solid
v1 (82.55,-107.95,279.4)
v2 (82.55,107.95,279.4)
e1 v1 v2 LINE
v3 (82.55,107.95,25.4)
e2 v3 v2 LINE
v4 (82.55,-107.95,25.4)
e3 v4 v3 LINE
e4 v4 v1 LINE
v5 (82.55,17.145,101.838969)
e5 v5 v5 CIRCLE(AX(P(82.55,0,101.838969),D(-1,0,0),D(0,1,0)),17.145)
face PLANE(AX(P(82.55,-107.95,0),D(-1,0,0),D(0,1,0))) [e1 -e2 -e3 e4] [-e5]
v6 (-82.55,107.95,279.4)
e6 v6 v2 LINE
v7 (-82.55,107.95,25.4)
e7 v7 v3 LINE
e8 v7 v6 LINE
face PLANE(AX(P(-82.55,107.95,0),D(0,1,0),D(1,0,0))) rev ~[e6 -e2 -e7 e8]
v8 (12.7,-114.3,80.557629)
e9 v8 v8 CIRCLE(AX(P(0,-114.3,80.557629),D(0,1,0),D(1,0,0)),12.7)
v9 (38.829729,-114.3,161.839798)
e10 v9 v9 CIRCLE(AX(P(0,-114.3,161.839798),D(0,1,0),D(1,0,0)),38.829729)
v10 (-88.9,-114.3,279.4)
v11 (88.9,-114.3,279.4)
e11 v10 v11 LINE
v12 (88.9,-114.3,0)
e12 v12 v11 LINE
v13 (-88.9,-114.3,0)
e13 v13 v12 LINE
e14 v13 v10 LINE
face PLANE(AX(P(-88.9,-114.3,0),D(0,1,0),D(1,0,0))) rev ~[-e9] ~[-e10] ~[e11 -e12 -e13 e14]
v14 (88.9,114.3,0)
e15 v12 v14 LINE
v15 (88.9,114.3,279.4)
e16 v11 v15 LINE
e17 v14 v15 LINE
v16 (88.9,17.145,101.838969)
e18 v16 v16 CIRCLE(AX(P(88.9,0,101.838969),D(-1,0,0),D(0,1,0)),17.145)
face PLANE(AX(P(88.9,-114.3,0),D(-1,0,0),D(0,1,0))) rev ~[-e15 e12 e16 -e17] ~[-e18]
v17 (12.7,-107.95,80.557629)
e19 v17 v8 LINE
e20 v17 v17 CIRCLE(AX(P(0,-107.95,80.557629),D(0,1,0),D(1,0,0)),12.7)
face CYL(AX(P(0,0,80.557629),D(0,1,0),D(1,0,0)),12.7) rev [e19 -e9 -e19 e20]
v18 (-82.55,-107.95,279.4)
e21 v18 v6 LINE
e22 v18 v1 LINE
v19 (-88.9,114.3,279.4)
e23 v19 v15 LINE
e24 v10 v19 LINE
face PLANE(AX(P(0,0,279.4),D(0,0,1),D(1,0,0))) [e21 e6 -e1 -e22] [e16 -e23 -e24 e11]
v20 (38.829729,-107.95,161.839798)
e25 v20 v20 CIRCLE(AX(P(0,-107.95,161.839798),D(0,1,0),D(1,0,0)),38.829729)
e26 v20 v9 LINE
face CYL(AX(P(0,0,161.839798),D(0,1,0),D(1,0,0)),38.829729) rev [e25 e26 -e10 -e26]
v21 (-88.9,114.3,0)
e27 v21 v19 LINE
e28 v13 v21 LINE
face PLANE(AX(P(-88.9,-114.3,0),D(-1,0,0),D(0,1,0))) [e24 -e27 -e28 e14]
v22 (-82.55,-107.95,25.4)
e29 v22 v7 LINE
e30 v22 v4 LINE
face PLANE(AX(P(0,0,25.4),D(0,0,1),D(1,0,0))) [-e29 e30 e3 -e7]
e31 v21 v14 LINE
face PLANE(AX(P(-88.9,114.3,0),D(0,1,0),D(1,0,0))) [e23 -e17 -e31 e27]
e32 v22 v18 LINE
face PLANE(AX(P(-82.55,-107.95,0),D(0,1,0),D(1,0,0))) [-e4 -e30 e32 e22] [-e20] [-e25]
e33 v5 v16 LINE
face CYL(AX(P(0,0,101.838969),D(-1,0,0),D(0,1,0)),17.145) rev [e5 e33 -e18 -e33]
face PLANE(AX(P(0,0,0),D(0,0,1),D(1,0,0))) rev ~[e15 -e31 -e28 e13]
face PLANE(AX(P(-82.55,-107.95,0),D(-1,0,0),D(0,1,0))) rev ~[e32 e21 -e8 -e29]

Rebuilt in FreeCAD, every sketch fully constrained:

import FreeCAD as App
import Part
import Sketcher
Q = App.Units.Quantity

doc = App.newDocument("Part")
params = doc.addObject("Spreadsheet::Sheet", "Params")
for row, (alias, value) in enumerate([
    ("sketch1_width", "7 in"),
    ("sketch1_height", "9 in"),
    ("sketch1_width2", "6.5 in"),
    ("sketch1_height2", "8.5 in"),
    ("pad1_length", "11 in"),
    ("sketch2_diameter", "1 in"),
    ("pocket1_length", "10 in"),
    ("sketch3_diameter", "1.35 in"),
    ("pocket2_length", "10 in"),
    ("sketch4_width", "6.5 in"),
    ("sketch4_height", "8.5 in"),
    ("pad2_length", "1 in"),
], start=1):
    params.set(f"A{row}", alias)
    params.set(f"B{row}", "=" + value)
    params.setAlias(f"B{row}", alias)

body = doc.addObject("PartDesign::Body", "Body")

sketch1 = body.newObject("Sketcher::SketchObject", "Sketch")
sketch1.AttachmentSupport = (doc.getObject("XY_Plane"), [""])
sketch1.MapMode = "FlatFace"
sketch1.addGeometry([
    Part.LineSegment(App.Vector(-89, 114, 0), App.Vector(-89, -114, 0)),
    Part.LineSegment(App.Vector(-89, -114, 0), App.Vector(89, -114, 0)),
    Part.LineSegment(App.Vector(89, -114, 0), App.Vector(89, 114, 0)),
    Part.LineSegment(App.Vector(89, 114, 0), App.Vector(-89, 114, 0)),
    Part.LineSegment(App.Vector(83, -108, 0), App.Vector(-83, -108, 0)),
    Part.LineSegment(App.Vector(-83, -108, 0), App.Vector(-83, 108, 0)),
    Part.LineSegment(App.Vector(-83, 108, 0), App.Vector(83, 108, 0)),
    Part.LineSegment(App.Vector(83, 108, 0), App.Vector(83, -108, 0)),
], False)
sketch1.addConstraint([
    Sketcher.Constraint("Coincident", 0, 2, 1, 1),
    Sketcher.Constraint("Coincident", 1, 2, 2, 1),
    Sketcher.Constraint("Coincident", 2, 2, 3, 1),
    Sketcher.Constraint("Coincident", 3, 2, 0, 1),
    Sketcher.Constraint("Coincident", 4, 2, 5, 1),
    Sketcher.Constraint("Coincident", 5, 2, 6, 1),
    Sketcher.Constraint("Coincident", 6, 2, 7, 1),
    Sketcher.Constraint("Coincident", 7, 2, 4, 1),
    Sketcher.Constraint("Vertical", 0),
    Sketcher.Constraint("Horizontal", 1),
    Sketcher.Constraint("Vertical", 2),
    Sketcher.Constraint("Horizontal", 3),
    Sketcher.Constraint("Horizontal", 4),
    Sketcher.Constraint("Vertical", 5),
    Sketcher.Constraint("Horizontal", 6),
    Sketcher.Constraint("Vertical", 7),
    Sketcher.Constraint("Symmetric", 0, 2, 2, 2, -1, 1),
    Sketcher.Constraint("Symmetric", 4, 2, 6, 2, -1, 1),
    Sketcher.Constraint("DistanceX", 1, 1, 1, 2, Q("7 in")),
    Sketcher.Constraint("DistanceY", 0, 2, 0, 1, Q("9 in")),
    Sketcher.Constraint("DistanceX", 4, 2, 4, 1, Q("6.5 in")),
    Sketcher.Constraint("DistanceY", 5, 1, 5, 2, Q("8.5 in")),
])
sketch1.setExpression("Constraints[18]", "Params.sketch1_width")
sketch1.setExpression("Constraints[19]", "Params.sketch1_height")
sketch1.setExpression("Constraints[20]", "Params.sketch1_width2")
sketch1.setExpression("Constraints[21]", "Params.sketch1_height2")
pad1 = body.newObject("PartDesign::Pad", "Pad")
pad1.Profile = sketch1
pad1.setExpression("Length", "Params.pad1_length")

sketch2 = body.newObject("Sketcher::SketchObject", "Sketch001")
sketch2.AttachmentSupport = (doc.getObject("XZ_Plane"), [""])
sketch2.MapMode = "FlatFace"
sketch2.addGeometry([
    Part.Circle(App.Vector(0, 81, 0), App.Vector(0, 0, 1), 13),
    Part.Circle(App.Vector(0, 162, 0), App.Vector(0, 0, 1), 39),
], False)
sketch2.addConstraint([
    Sketcher.Constraint("PointOnObject", 0, 3, -2),
    Sketcher.Constraint("PointOnObject", 1, 3, -2),
    Sketcher.Constraint("Diameter", 0, Q("1 in")),
    Sketcher.Constraint("Diameter", 1, Q("77.659458 mm")),
    Sketcher.Constraint("DistanceY", -1, 1, 1, 3, Q("161.839798 mm")),
    Sketcher.Constraint("DistanceY", -1, 1, 0, 3, Q("80.557629 mm")),
])
sketch2.setExpression("Constraints[2]", "Params.sketch2_diameter")
pocket1 = body.newObject("PartDesign::Pocket", "Pocket")
pocket1.Profile = sketch2
pocket1.setExpression("Length", "Params.pocket1_length")
pocket1.Reversed = True

sketch3 = body.newObject("Sketcher::SketchObject", "Sketch002")
sketch3.AttachmentSupport = (doc.getObject("YZ_Plane"), [""])
sketch3.MapMode = "FlatFace"
sketch3.addGeometry(Part.Circle(App.Vector(0, 102, 0), App.Vector(0, 0, 1), 17), False)
sketch3.addConstraint([
    Sketcher.Constraint("PointOnObject", 0, 3, -2),
    Sketcher.Constraint("Diameter", 0, Q("1.35 in")),
    Sketcher.Constraint("DistanceY", -1, 1, 0, 3, Q("101.838969 mm")),
])
sketch3.setExpression("Constraints[1]", "Params.sketch3_diameter")
pocket2 = body.newObject("PartDesign::Pocket", "Pocket001")
pocket2.Profile = sketch3
pocket2.setExpression("Length", "Params.pocket2_length")
pocket2.Reversed = True

sketch4 = body.newObject("Sketcher::SketchObject", "Sketch003")
sketch4.AttachmentSupport = (doc.getObject("XY_Plane"), [""])
sketch4.MapMode = "FlatFace"
sketch4.addGeometry([
    Part.LineSegment(App.Vector(-83, 108, 0), App.Vector(-83, -108, 0)),
    Part.LineSegment(App.Vector(-83, -108, 0), App.Vector(83, -108, 0)),
    Part.LineSegment(App.Vector(83, -108, 0), App.Vector(83, 108, 0)),
    Part.LineSegment(App.Vector(83, 108, 0), App.Vector(-83, 108, 0)),
], False)
sketch4.addConstraint([
    Sketcher.Constraint("Coincident", 0, 2, 1, 1),
    Sketcher.Constraint("Coincident", 1, 2, 2, 1),
    Sketcher.Constraint("Coincident", 2, 2, 3, 1),
    Sketcher.Constraint("Coincident", 3, 2, 0, 1),
    Sketcher.Constraint("Vertical", 0),
    Sketcher.Constraint("Horizontal", 1),
    Sketcher.Constraint("Vertical", 2),
    Sketcher.Constraint("Horizontal", 3),
    Sketcher.Constraint("Symmetric", 0, 2, 2, 2, -1, 1),
    Sketcher.Constraint("DistanceX", 1, 1, 1, 2, Q("6.5 in")),
    Sketcher.Constraint("DistanceY", 0, 2, 0, 1, Q("8.5 in")),
])
sketch4.setExpression("Constraints[9]", "Params.sketch4_width")
sketch4.setExpression("Constraints[10]", "Params.sketch4_height")
pad2 = body.newObject("PartDesign::Pad", "Pad001")
pad2.Profile = sketch4
pad2.setExpression("Length", "Params.pad2_length")

doc.recompute()
